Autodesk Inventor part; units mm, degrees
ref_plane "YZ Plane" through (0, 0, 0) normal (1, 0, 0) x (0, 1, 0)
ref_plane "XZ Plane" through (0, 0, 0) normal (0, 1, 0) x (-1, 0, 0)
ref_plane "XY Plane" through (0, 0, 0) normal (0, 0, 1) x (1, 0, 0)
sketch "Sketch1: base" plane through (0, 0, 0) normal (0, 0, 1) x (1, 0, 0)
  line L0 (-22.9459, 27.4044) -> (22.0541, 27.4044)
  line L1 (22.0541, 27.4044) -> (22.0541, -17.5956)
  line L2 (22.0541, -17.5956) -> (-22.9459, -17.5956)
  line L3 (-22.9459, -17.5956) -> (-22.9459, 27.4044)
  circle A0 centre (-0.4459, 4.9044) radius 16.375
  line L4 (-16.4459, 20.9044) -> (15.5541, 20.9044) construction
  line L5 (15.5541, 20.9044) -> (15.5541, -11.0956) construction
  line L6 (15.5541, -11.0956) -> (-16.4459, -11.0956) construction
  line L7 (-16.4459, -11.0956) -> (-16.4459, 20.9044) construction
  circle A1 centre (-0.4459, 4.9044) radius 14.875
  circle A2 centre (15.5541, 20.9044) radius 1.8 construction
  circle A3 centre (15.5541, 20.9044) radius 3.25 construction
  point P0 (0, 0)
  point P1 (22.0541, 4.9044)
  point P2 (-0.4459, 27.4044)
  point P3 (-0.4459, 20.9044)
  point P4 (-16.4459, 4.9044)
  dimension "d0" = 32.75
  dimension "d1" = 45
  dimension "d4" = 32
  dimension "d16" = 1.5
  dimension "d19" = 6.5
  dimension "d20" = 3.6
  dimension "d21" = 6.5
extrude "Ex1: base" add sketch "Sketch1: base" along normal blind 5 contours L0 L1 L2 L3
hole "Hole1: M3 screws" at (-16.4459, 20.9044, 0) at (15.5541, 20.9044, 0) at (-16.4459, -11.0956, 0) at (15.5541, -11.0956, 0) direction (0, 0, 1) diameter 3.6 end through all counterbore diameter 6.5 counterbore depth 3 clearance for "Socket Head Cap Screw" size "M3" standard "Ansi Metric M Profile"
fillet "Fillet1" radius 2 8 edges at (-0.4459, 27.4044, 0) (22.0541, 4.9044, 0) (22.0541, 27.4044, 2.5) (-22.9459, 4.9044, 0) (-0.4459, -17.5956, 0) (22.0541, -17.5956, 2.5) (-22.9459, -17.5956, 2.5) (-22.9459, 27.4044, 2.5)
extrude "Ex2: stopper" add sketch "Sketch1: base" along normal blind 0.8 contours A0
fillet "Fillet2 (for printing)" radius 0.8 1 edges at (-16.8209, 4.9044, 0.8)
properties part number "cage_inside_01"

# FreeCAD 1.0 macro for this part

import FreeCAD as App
import Part
import Sketcher

V = App.Vector
Q = App.Units.Quantity


def edges_at(feature, points):
    """Names of the edges that pass closest to the given points."""
    edges = feature.Shape.Edges
    near = lambda p: min(range(len(edges)), key=lambda i: edges[i].distToShape(Part.Vertex(*p))[0])
    return sorted({f"Edge{near(p) + 1}" for p in points})


def add_polygon(sketch, points):
    """Adds a closed chain of lines whose ends are joined by coincident constraints."""
    first, n = sketch.GeometryCount, len(points)
    for a, b in zip(points, points[1:] + points[:1]):
        sketch.addGeometry(Part.LineSegment(App.Vector(*a, 0), App.Vector(*b, 0)), False)
    for i in range(n):
        sketch.addConstraint(Sketcher.Constraint("Coincident", first + i, 2, first + (i + 1) % n, 1))

doc = App.newDocument("Part")
body = doc.addObject("PartDesign::Body", "Body")

# Sketch on XY plane
sketch1 = doc.addObject("Sketcher::SketchObject", "Sketch")
body.addObject(sketch1)
sketch1.AttachmentSupport = (doc.XY_Plane, [""])
sketch1.MapMode = "FlatFace"
add_polygon(sketch1, [(22.0541, 27.4044), (-22.9459, 27.4044), (-22.9459, -17.5956), (22.0541, -17.5956)])  # lines 0-3
sketch1.addGeometry(Part.Circle(V(-0.4459, 4.9044, 0), V(0, 0, 1), 16.375), False)  # 4
sketch1.addConstraint([
    Sketcher.Constraint("Horizontal", 0),
    Sketcher.Constraint("Vertical", 1),
    Sketcher.Constraint("Horizontal", 2),
    Sketcher.Constraint("Vertical", 3),
    Sketcher.Constraint("Equal", 2, 1),
    Sketcher.Constraint("Diameter", 4, Q("32.75 mm")),
    Sketcher.Constraint("DistanceX", 0, 2, 0, 1, Q("45 mm")),
    Sketcher.Constraint("DistanceX", 0, 2, 4, 3, Q("22.5 mm")),
    Sketcher.Constraint("DistanceY", 4, 3, 0, 2, Q("22.5 mm")),
    Sketcher.Constraint("DistanceX", 4, 3, -1, 1, Q("0.446 mm")),
    Sketcher.Constraint("DistanceY", -1, 1, 4, 3, Q("4.9044 mm")),
])
pad1 = doc.addObject("PartDesign::Pad", "Pad")
body.addObject(pad1)
pad1.Profile = sketch1
pad1.Length = 5

# Sketch on XY plane
sketch2 = doc.addObject("Sketcher::SketchObject", "Sketch001")
body.addObject(sketch2)
sketch2.AttachmentSupport = (doc.XY_Plane, [""])
sketch2.MapMode = "FlatFace"
sketch2.addGeometry([
    Part.Circle(V(-16.4459, 20.9044, 0), V(0, 0, 1), 1.8),
    Part.Circle(V(15.5541, 20.9044, 0), V(0, 0, 1), 1.8),
    Part.Circle(V(-16.4459, -11.0956, 0), V(0, 0, 1), 1.8),
    Part.Circle(V(15.5541, -11.0956, 0), V(0, 0, 1), 1.8),
], False)
sketch2.addConstraint([
    Sketcher.Constraint("Equal", 0, 1),
    Sketcher.Constraint("Equal", 1, 2),
    Sketcher.Constraint("Equal", 2, 3),
    Sketcher.Constraint("Horizontal", 0, 3, 1, 3),
    Sketcher.Constraint("Horizontal", 2, 3, 3, 3),
    Sketcher.Constraint("Vertical", 0, 3, 2, 3),
    Sketcher.Constraint("Vertical", 1, 3, 3, 3),
    Sketcher.Constraint("Diameter", 0, Q("3.6 mm")),
    Sketcher.Constraint("DistanceX", 0, 3, 1, 3, Q("32 mm")),
    Sketcher.Constraint("DistanceY", 2, 3, 0, 3, Q("32 mm")),
    Sketcher.Constraint("DistanceX", 0, 3, -1, 1, Q("16.446 mm")),
    Sketcher.Constraint("DistanceY", -1, 1, 0, 3, Q("20.9044 mm")),
])
doc.recompute()
hole = doc.addObject("PartDesign::Hole", "Hole")
body.addObject(hole)
hole.Profile = sketch2
hole.ThreadType = "None"
hole.Diameter = 3.6
hole.DepthType = "ThroughAll"
hole.HoleCutType = "Counterbore"
hole.HoleCutDiameter = 6.5
hole.HoleCutDepth = 3
hole.Reversed = True
doc.recompute()

fillet = doc.addObject("PartDesign::Fillet", "Fillet")
body.addObject(fillet)
fillet.Base = (hole, edges_at(hole, [
    (-0.446, 27.404, 0),
    (22.054, 4.904, 0),
    (22.054, 27.404, 2.5),
    (-22.946, 4.904, 0),
    (-0.446, -17.596, 0),
    (22.054, -17.596, 2.5),
    (-22.946, -17.596, 2.5),
    (-22.946, 27.404, 2.5),
]))
fillet.Radius = 2

# Sketch on XY plane
sketch3 = doc.addObject("Sketcher::SketchObject", "Sketch002")
body.addObject(sketch3)
sketch3.AttachmentSupport = (doc.XY_Plane, [""])
sketch3.MapMode = "FlatFace"
sketch3.addGeometry([
    Part.Circle(V(-0.4459, 4.9044, 0), V(0, 0, 1), 16.375),
    Part.Circle(V(-0.4459, 4.9044, 0), V(0, 0, 1), 14.875),
], False)
sketch3.addConstraint([
    Sketcher.Constraint("Coincident", 1, 3, 0, 3),
    Sketcher.Constraint("Diameter", 0, Q("32.75 mm")),
    Sketcher.Constraint("Diameter", 1, Q("29.75 mm")),
    Sketcher.Constraint("DistanceX", 0, 3, -1, 1, Q("0.446 mm")),
    Sketcher.Constraint("DistanceY", -1, 1, 0, 3, Q("4.9044 mm")),
])
pad2 = doc.addObject("PartDesign::Pad", "Pad001")
body.addObject(pad2)
pad2.Profile = sketch3
pad2.Length = 0.8
doc.recompute()

fillet2 = doc.addObject("PartDesign::Fillet", "Fillet001")
body.addObject(fillet2)
fillet2.Base = (pad2, edges_at(pad2, [(-16.821, 4.904, 0.8)]))
fillet2.Radius = 0.8

doc.recompute()
